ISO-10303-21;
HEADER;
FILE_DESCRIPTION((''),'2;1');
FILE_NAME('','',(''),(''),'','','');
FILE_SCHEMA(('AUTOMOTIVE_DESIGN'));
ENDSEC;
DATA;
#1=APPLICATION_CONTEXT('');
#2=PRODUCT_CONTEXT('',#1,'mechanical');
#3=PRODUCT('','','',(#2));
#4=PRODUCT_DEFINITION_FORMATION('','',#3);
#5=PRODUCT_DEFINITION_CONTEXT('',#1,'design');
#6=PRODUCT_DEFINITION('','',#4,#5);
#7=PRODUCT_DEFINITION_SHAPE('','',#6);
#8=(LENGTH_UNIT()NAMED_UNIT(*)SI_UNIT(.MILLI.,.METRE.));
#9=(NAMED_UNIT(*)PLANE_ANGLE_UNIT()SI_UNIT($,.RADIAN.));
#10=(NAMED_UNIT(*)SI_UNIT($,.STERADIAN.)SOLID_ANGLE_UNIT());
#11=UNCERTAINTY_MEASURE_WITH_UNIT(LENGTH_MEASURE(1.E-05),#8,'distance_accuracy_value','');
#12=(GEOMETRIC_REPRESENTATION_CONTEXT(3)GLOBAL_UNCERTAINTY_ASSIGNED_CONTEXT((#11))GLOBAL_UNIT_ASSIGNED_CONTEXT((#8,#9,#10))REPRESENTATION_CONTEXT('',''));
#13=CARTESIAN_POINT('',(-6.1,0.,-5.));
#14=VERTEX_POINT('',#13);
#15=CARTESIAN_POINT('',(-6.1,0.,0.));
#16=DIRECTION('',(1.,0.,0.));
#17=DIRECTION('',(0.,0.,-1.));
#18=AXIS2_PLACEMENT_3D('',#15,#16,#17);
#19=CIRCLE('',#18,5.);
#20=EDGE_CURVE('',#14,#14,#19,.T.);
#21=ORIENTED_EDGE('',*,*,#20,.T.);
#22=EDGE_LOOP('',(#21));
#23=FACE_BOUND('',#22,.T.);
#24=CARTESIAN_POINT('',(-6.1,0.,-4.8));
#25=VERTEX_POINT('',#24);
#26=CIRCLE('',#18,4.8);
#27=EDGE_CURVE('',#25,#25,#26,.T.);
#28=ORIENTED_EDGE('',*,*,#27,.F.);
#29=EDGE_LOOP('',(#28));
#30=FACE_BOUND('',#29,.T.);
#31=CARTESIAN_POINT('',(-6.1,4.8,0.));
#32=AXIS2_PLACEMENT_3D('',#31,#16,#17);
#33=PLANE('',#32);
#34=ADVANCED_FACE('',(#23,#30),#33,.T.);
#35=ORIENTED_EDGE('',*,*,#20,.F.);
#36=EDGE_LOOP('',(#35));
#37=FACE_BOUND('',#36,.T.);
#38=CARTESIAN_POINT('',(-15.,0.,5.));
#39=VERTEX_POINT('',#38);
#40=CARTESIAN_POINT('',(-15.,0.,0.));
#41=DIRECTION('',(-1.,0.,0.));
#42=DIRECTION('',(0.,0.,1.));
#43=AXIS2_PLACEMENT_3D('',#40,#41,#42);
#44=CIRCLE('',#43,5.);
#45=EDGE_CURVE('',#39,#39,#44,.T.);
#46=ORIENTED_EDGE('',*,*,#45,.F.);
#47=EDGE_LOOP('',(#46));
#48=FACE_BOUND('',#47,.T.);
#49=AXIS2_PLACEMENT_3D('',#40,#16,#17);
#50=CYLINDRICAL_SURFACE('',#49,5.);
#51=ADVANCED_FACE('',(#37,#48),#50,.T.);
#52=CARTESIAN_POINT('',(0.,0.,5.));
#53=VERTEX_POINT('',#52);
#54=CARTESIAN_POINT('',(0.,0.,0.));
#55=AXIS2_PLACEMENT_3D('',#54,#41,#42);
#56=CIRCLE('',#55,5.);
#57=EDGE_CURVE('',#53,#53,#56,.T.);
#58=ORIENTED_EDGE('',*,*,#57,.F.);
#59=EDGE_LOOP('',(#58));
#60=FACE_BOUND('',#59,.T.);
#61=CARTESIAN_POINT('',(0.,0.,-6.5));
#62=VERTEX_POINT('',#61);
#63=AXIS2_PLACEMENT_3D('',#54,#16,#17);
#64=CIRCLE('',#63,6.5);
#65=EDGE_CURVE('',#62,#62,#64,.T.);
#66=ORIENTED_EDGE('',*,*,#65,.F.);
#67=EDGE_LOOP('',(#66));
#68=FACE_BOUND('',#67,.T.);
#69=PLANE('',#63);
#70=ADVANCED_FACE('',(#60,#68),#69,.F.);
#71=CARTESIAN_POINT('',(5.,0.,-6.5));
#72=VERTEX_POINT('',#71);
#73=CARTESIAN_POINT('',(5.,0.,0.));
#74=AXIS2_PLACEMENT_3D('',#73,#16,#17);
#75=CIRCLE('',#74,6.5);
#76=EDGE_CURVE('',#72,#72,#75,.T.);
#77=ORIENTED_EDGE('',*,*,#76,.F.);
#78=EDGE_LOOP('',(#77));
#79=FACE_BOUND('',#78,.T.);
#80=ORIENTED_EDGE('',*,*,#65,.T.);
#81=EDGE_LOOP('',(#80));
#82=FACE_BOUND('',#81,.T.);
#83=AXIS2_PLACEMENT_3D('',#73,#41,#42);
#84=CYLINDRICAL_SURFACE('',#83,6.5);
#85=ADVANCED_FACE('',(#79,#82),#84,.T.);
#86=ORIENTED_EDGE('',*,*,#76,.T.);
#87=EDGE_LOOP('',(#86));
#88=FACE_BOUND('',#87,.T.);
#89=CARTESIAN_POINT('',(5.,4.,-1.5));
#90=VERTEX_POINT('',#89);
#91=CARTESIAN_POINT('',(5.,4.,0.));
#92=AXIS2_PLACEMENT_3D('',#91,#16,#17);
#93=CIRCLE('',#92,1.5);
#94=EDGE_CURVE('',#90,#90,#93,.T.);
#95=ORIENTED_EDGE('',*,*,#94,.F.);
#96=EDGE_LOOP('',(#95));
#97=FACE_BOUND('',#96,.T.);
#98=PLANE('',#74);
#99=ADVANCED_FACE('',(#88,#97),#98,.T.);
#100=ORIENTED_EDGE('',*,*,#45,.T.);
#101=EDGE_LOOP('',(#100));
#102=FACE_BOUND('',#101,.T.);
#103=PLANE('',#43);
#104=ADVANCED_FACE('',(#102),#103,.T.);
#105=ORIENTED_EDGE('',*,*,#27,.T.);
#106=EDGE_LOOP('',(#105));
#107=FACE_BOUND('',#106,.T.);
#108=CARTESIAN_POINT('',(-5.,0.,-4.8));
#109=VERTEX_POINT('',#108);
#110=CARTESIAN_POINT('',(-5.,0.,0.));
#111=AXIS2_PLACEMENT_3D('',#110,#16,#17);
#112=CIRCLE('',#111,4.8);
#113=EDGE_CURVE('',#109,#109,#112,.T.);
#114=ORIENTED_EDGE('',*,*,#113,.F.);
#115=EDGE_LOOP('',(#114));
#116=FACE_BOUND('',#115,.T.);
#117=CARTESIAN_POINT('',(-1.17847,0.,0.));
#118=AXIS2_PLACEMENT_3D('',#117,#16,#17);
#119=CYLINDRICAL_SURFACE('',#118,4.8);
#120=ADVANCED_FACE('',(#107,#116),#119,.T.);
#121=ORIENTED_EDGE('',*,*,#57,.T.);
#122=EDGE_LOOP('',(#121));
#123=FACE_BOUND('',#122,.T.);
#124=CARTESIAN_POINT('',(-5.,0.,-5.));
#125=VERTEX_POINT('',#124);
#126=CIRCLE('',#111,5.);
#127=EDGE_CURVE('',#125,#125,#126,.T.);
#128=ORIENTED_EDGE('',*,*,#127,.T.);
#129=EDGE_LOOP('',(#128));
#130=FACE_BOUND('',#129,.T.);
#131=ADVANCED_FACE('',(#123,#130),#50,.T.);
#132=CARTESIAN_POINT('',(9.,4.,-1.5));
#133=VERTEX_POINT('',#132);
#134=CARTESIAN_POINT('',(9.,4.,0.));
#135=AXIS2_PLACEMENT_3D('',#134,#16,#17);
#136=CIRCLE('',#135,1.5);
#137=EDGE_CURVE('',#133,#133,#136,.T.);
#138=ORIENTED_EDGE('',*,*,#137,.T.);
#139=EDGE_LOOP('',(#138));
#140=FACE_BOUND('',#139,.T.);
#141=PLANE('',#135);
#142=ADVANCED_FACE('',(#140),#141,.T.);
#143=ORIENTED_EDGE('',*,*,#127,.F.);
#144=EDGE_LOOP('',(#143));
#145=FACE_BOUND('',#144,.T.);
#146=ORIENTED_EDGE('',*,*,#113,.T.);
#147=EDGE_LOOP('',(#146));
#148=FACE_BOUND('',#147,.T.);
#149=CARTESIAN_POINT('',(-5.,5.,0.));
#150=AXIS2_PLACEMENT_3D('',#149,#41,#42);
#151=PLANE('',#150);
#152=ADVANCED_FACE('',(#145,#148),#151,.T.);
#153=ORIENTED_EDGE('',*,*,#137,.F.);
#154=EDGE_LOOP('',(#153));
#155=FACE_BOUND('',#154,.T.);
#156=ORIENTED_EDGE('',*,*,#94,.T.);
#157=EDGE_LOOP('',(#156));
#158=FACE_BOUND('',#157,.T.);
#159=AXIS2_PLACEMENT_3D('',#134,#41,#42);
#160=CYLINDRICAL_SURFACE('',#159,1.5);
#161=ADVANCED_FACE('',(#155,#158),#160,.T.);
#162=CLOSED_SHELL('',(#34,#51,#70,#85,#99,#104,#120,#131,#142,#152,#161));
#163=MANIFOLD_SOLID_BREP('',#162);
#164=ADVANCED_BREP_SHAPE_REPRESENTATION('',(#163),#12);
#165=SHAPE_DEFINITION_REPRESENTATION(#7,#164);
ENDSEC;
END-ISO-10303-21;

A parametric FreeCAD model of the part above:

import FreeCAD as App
import Part
import Sketcher
from FreeCAD import Vector

doc = App.newDocument("Part")
body = doc.addObject("PartDesign::Body", "Body")

# Sketch on YZ plane
sketch1 = body.newObject("Sketcher::SketchObject", "Sketch")
sketch1.AttachmentSupport = (doc.getObject("YZ_Plane"), [""])
sketch1.MapMode = "FlatFace"
sketch1.addGeometry(Part.Circle(Vector(0, 0, 0), Vector(0, 0, 1), 6), False)
sketch1.addConstraint([
    Sketcher.Constraint("Coincident", 0, 3, -1, 1),
    Sketcher.Constraint("Diameter", 0, 13.0),
])
pad1 = body.newObject("PartDesign::Pad", "Pad")
pad1.Profile = sketch1
pad1.Length = 5

# Sketch on YZ plane
sketch2 = body.newObject("Sketcher::SketchObject", "Sketch001")
sketch2.AttachmentSupport = (doc.getObject("YZ_Plane"), [""])
sketch2.MapMode = "FlatFace"
sketch2.addGeometry(Part.Circle(Vector(0, 0, 0), Vector(0, 0, 1), 5), False)
sketch2.addConstraint([
    Sketcher.Constraint("Coincident", 0, 3, -1, 1),
    Sketcher.Constraint("Diameter", 0, 10.0),
])
pad2 = body.newObject("PartDesign::Pad", "Pad001")
pad2.Profile = sketch2
pad2.Length = 15
pad2.Reversed = True

# Sketch on YZ plane
sketch3 = body.newObject("Sketcher::SketchObject", "Sketch002")
sketch3.AttachmentSupport = (doc.getObject("YZ_Plane"), [""])
sketch3.MapMode = "FlatFace"
sketch3.AttachmentOffset = App.Placement(Vector(0, 0, 5), App.Rotation())
sketch3.addGeometry(Part.Circle(Vector(4, 0, 0), Vector(0, 0, 1), 1.5), False)
sketch3.addConstraint([
    Sketcher.Constraint("PointOnObject", 0, 3, -1),
    Sketcher.Constraint("Diameter", 0, 3.0),
    Sketcher.Constraint("DistanceX", -1, 1, 0, 3, 4.0),
])
pad3 = body.newObject("PartDesign::Pad", "Pad002")
pad3.Profile = sketch3
pad3.Length = 4

# Sketch on XY plane
sketch4 = body.newObject("Sketcher::SketchObject", "Sketch003")
sketch4.AttachmentSupport = (doc.getObject("XY_Plane"), [""])
sketch4.MapMode = "FlatFace"
sketch4.addGeometry([
    Part.LineSegment(Vector(-6.1, 5, 0), Vector(-6.1, 4.8, 0)),
    Part.LineSegment(Vector(-6.1, 4.8, 0), Vector(-5, 4.8, 0)),
    Part.LineSegment(Vector(-5, 4.8, 0), Vector(-5, 5, 0)),
    Part.LineSegment(Vector(-5, 5, 0), Vector(-6.1, 5, 0)),
], False)
sketch4.addConstraint([
    Sketcher.Constraint("Coincident", 0, 2, 1, 1),
    Sketcher.Constraint("Coincident", 1, 2, 2, 1),
    Sketcher.Constraint("Coincident", 2, 2, 3, 1),
    Sketcher.Constraint("Coincident", 3, 2, 0, 1),
    Sketcher.Constraint("Vertical", 0),
    Sketcher.Constraint("Horizontal", 1),
    Sketcher.Constraint("Vertical", 2),
    Sketcher.Constraint("Horizontal", 3),
    Sketcher.Constraint("DistanceX", 1, 1, 1, 2, 1.1),
    Sketcher.Constraint("DistanceY", 0, 2, 0, 1, 0.2),
    Sketcher.Constraint("DistanceX", 1, 2, -1, 1, 5.0),
    Sketcher.Constraint("DistanceY", -1, 1, 2, 2, 5.0),
])
groove = body.newObject("PartDesign::Groove", "Groove")
groove.Profile = sketch4
groove.ReferenceAxis = (sketch4, ["H_Axis"])
groove.Angle = 360

doc.recompute()
